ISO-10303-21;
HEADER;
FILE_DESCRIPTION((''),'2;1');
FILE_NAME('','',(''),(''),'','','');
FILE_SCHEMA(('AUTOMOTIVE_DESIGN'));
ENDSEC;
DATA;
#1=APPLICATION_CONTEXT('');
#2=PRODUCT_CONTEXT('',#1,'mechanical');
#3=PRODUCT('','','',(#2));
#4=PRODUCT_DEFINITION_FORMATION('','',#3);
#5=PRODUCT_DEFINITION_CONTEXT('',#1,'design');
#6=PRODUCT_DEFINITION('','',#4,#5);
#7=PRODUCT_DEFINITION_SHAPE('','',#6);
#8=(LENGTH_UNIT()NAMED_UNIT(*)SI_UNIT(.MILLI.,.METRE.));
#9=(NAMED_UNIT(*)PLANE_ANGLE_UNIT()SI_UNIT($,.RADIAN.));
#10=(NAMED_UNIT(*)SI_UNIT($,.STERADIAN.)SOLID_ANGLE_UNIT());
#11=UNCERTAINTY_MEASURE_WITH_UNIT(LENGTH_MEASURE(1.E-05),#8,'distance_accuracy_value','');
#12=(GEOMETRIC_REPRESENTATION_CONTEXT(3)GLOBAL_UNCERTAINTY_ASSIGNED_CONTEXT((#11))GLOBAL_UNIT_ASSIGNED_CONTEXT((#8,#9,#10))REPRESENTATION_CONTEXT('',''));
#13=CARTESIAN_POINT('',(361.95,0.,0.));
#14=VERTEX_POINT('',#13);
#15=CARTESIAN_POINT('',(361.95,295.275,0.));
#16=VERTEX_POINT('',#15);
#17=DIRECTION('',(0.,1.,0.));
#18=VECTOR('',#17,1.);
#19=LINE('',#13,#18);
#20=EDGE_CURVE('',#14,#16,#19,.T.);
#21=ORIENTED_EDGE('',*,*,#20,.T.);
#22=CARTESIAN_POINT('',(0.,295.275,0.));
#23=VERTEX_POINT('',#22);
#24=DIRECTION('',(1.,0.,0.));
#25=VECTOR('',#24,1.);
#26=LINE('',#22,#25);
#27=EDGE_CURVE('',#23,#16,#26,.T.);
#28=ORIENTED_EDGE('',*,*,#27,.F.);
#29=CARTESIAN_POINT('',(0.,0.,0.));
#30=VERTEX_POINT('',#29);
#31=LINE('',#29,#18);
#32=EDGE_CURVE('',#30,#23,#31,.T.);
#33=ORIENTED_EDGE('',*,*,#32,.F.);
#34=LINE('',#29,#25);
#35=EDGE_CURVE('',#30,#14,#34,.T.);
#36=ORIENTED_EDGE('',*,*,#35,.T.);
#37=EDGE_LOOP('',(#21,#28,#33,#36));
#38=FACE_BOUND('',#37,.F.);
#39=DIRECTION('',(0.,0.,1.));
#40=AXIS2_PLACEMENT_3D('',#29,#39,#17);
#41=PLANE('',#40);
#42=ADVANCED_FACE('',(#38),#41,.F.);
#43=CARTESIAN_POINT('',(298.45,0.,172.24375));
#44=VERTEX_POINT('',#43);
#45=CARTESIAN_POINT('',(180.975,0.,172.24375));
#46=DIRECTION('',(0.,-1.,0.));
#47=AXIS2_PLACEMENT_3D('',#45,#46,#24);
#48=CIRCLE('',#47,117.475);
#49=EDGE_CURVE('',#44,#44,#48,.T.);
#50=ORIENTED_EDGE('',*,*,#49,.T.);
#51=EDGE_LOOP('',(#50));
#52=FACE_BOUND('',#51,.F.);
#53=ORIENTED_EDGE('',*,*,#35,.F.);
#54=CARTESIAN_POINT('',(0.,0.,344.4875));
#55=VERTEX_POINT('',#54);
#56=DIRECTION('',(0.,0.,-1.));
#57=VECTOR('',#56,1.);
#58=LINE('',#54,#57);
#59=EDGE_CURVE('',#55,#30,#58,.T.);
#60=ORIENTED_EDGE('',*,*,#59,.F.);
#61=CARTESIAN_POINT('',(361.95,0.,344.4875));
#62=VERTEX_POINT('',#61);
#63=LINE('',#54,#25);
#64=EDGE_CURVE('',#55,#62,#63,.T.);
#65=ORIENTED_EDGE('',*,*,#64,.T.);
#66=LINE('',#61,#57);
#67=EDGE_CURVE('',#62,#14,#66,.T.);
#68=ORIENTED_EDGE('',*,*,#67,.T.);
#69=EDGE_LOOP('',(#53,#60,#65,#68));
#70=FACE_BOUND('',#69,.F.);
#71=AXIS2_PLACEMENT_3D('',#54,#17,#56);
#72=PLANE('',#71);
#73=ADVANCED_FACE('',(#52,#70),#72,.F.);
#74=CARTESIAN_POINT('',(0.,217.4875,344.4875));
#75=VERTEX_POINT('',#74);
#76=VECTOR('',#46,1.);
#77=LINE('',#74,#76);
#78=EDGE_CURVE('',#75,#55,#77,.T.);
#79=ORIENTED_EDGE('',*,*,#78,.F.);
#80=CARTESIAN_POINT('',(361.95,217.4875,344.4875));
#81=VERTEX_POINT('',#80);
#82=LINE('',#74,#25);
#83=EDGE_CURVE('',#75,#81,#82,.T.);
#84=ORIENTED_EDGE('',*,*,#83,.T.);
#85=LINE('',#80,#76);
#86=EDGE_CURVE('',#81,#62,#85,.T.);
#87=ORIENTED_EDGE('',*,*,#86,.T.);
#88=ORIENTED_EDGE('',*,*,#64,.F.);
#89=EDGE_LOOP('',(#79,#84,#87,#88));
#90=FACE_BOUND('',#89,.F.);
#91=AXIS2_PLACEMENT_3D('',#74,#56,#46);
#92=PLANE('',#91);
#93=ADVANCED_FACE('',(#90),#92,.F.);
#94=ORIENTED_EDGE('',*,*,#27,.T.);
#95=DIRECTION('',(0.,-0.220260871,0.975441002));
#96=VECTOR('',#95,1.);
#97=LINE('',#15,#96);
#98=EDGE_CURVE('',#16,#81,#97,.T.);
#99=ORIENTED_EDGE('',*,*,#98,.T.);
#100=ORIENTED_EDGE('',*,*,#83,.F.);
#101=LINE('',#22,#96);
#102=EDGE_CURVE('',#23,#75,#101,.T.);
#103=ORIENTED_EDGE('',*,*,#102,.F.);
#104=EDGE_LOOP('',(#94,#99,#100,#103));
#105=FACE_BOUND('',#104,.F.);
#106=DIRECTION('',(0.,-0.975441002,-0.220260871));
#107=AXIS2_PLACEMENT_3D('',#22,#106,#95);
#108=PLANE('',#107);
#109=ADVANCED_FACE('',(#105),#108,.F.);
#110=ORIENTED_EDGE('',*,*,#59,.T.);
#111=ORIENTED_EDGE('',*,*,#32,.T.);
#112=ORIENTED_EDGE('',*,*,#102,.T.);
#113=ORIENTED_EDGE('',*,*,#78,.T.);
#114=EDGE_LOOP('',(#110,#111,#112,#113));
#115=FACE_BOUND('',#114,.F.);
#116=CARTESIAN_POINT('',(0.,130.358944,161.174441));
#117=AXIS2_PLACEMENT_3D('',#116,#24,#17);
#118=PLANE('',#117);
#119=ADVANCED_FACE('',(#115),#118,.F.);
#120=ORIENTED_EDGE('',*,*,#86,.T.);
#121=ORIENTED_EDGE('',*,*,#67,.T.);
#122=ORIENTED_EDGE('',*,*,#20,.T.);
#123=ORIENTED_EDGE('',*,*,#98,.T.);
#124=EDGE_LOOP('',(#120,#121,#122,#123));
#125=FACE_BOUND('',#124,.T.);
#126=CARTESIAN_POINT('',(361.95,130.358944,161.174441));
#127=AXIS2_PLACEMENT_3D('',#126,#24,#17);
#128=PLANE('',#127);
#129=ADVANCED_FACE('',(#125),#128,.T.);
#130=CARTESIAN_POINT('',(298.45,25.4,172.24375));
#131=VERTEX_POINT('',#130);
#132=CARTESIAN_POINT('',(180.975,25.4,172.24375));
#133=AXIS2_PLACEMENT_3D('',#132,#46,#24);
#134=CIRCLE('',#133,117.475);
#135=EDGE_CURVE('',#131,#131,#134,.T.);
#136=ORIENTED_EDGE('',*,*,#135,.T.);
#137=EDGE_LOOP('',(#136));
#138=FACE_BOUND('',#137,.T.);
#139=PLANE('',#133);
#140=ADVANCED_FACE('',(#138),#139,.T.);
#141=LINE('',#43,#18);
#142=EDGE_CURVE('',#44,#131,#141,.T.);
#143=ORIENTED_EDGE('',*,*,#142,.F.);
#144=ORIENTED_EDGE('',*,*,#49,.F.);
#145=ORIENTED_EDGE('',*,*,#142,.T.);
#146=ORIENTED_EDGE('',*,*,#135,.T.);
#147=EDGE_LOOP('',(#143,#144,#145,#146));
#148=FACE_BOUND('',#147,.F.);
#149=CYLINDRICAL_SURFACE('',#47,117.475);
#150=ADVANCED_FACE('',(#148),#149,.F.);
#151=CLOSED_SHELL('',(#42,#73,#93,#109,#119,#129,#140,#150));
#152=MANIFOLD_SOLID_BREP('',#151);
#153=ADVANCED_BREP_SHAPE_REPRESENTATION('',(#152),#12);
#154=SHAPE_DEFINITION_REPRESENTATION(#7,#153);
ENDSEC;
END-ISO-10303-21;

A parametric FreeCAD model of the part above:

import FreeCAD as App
import Part
import Sketcher

V = App.Vector
Q = App.Units.Quantity

doc = App.newDocument("Part")
body = doc.addObject("PartDesign::Body", "Body")

# Sketch on YZ plane
sketch1 = body.newObject("Sketcher::SketchObject", "Sketch")
sketch1.AttachmentSupport = (doc.getObject("YZ_Plane"), [""])
sketch1.MapMode = "FlatFace"
sketch1.addGeometry([
    Part.LineSegment(V(0, 344, 0), V(0, 0, 0)),
    Part.LineSegment(V(0, 0, 0), V(295, 0, 0)),
    Part.LineSegment(V(295, 0, 0), V(217, 344, 0)),
    Part.LineSegment(V(217, 344, 0), V(0, 344, 0)),
], False)
sketch1.addConstraint([
    Sketcher.Constraint("Coincident", 0, 2, 1, 1),
    Sketcher.Constraint("Coincident", 1, 2, 2, 1),
    Sketcher.Constraint("Coincident", 2, 2, 3, 1),
    Sketcher.Constraint("Coincident", 3, 2, 0, 1),
    Sketcher.Constraint("Vertical", 0),
    Sketcher.Constraint("Horizontal", 1),
    Sketcher.Constraint("Horizontal", 3),
    Sketcher.Constraint("Coincident", 0, 2, -1, 1),
    Sketcher.Constraint("DistanceX", 1, 1, 1, 2, Q("11.625 in")),
    Sketcher.Constraint("DistanceX", 3, 2, 3, 1, Q("8.5625 in")),
    Sketcher.Constraint("DistanceY", 0, 2, 0, 1, Q("13.5625 in")),
])
pad1 = body.newObject("PartDesign::Pad", "Pad")
pad1.Profile = sketch1
pad1.Length = Q("14.25 in")

# Sketch on XZ plane
sketch2 = body.newObject("Sketcher::SketchObject", "Sketch001")
sketch2.AttachmentSupport = (doc.getObject("XZ_Plane"), [""])
sketch2.MapMode = "FlatFace"
sketch2.addGeometry(Part.Circle(V(181, 172, 0), V(0, 0, 1), 117), False)
sketch2.addConstraint([
    Sketcher.Constraint("Diameter", 0, Q("9.25 in")),
    Sketcher.Constraint("DistanceX", -1, 1, 0, 3, Q("7.125 in")),
    Sketcher.Constraint("DistanceY", -1, 1, 0, 3, Q("6.78125 in")),
])
pocket1 = body.newObject("PartDesign::Pocket", "Pocket")
pocket1.Profile = sketch2
pocket1.Length = Q("1 in")

doc.recompute()
